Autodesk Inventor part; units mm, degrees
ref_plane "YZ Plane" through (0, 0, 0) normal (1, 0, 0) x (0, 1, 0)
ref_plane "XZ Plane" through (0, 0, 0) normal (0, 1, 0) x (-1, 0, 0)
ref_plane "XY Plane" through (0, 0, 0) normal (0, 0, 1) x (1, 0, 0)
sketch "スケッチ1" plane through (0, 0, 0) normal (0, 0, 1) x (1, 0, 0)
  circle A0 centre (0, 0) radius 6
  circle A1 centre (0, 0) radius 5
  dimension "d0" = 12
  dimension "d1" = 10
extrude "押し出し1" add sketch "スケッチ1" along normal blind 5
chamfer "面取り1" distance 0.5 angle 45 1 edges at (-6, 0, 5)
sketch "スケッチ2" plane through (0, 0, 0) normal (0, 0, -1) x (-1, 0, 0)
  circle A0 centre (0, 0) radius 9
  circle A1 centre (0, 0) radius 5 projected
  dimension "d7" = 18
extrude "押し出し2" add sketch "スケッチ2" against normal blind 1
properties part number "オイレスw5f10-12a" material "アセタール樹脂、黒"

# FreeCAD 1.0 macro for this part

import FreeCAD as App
import Part
import Sketcher
Q = App.Units.Quantity


def edges_at(feature, points):
    """Names of the edges that pass closest to the given points."""
    edges = feature.Shape.Edges
    near = lambda p: min(range(len(edges)), key=lambda i: edges[i].distToShape(Part.Vertex(*p))[0])
    return sorted({f"Edge{near(p) + 1}" for p in points})

doc = App.newDocument("Part")
body = doc.addObject("PartDesign::Body", "Body")

sketch1 = body.newObject("Sketcher::SketchObject", "Sketch")
sketch1.AttachmentSupport = (doc.getObject("XY_Plane"), [""])
sketch1.MapMode = "FlatFace"
sketch1.addGeometry([
    Part.Circle(App.Vector(0, 0, 0), App.Vector(0, 0, 1), 6),
    Part.Circle(App.Vector(0, 0, 0), App.Vector(0, 0, 1), 5),
], False)
sketch1.addConstraint([
    Sketcher.Constraint("Coincident", 0, 3, -1, 1),
    Sketcher.Constraint("Coincident", 1, 3, -1, 1),
    Sketcher.Constraint("Diameter", 0, Q("12 mm")),
    Sketcher.Constraint("Diameter", 1, Q("10 mm")),
])
pad1 = body.newObject("PartDesign::Pad", "Pad")
pad1.Profile = sketch1
pad1.Length = 5
doc.recompute()

chamfer = body.newObject("PartDesign::Chamfer", "Chamfer")
chamfer.Base = (pad1, edges_at(pad1, [(-6, 0, 5)]))
chamfer.Size = 0.5

sketch2 = body.newObject("Sketcher::SketchObject", "Sketch001")
sketch2.AttachmentSupport = (doc.getObject("XY_Plane"), [""])
sketch2.MapMode = "FlatFace"
sketch2.addGeometry([
    Part.Circle(App.Vector(0, 0, 0), App.Vector(0, 0, 1), 9),
    Part.Circle(App.Vector(0, 0, 0), App.Vector(0, 0, 1), 5),
], False)
sketch2.addConstraint([
    Sketcher.Constraint("Coincident", 0, 3, -1, 1),
    Sketcher.Constraint("Coincident", 1, 3, -1, 1),
    Sketcher.Constraint("Diameter", 0, Q("18 mm")),
    Sketcher.Constraint("Diameter", 1, Q("10 mm")),
])
pad2 = body.newObject("PartDesign::Pad", "Pad001")
pad2.Profile = sketch2
pad2.Length = 1

doc.recompute()
